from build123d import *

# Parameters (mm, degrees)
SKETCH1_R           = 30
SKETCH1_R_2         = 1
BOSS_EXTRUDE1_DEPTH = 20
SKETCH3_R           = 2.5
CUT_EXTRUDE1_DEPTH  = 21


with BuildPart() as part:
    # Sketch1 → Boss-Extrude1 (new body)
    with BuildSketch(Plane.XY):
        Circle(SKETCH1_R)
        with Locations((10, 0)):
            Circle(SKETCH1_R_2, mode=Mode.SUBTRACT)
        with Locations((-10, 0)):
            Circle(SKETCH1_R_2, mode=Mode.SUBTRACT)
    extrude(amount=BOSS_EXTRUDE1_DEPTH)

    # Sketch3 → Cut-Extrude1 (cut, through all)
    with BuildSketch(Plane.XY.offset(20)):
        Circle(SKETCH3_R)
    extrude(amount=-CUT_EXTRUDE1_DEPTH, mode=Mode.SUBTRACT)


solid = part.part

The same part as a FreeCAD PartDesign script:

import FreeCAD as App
import Part
import Sketcher
Q = App.Units.Quantity

doc = App.newDocument("Part")
params = doc.addObject("Spreadsheet::Sheet", "Params")
for row, (alias, value) in enumerate([
    ("sketch1_diameter", "60 mm"),
    ("sketch1_diameter2", "2 mm"),
    ("pad1_length", "20 mm"),
    ("sketch2_diameter", "5 mm"),
], start=1):
    params.set(f"A{row}", alias)
    params.set(f"B{row}", "=" + value)
    params.setAlias(f"B{row}", alias)

body = doc.addObject("PartDesign::Body", "Body")

sketch1 = body.newObject("Sketcher::SketchObject", "Sketch")
sketch1.AttachmentSupport = (doc.getObject("XY_Plane"), [""])
sketch1.MapMode = "FlatFace"
sketch1.addGeometry([
    Part.Circle(App.Vector(0, 0, 0), App.Vector(0, 0, 1), 30),
    Part.Circle(App.Vector(-10, 0, 0), App.Vector(0, 0, 1), 1),
    Part.Circle(App.Vector(10, 0, 0), App.Vector(0, 0, 1), 1),
], False)
sketch1.addConstraint([
    Sketcher.Constraint("Coincident", 0, 3, -1, 1),
    Sketcher.Constraint("Equal", 1, 2),
    Sketcher.Constraint("Symmetric", 1, 3, 2, 3, -1, 1),
    Sketcher.Constraint("PointOnObject", 1, 3, -1),
    Sketcher.Constraint("Diameter", 0, Q("60 mm")),
    Sketcher.Constraint("Diameter", 1, Q("2 mm")),
    Sketcher.Constraint("DistanceX", 1, 3, -1, 1, Q("10 mm")),
])
sketch1.setExpression("Constraints[4]", "Params.sketch1_diameter")
sketch1.setExpression("Constraints[5]", "Params.sketch1_diameter2")
pad1 = body.newObject("PartDesign::Pad", "Pad")
pad1.Profile = sketch1
pad1.setExpression("Length", "Params.pad1_length")

sketch2 = body.newObject("Sketcher::SketchObject", "Sketch001")
sketch2.AttachmentSupport = (doc.getObject("XY_Plane"), [""])
sketch2.MapMode = "FlatFace"
sketch2.AttachmentOffset = App.Placement(App.Vector(0, 0, 20), App.Rotation())
sketch2.addGeometry(Part.Circle(App.Vector(0, 0, 0), App.Vector(0, 0, 1), 2.5), False)
sketch2.addConstraint([
    Sketcher.Constraint("Coincident", 0, 3, -1, 1),
    Sketcher.Constraint("Diameter", 0, Q("5 mm")),
])
sketch2.setExpression("Constraints[1]", "Params.sketch2_diameter")
pocket1 = body.newObject("PartDesign::Pocket", "Pocket")
pocket1.Profile = sketch2
pocket1.Type = "ThroughAll"

doc.recompute()
